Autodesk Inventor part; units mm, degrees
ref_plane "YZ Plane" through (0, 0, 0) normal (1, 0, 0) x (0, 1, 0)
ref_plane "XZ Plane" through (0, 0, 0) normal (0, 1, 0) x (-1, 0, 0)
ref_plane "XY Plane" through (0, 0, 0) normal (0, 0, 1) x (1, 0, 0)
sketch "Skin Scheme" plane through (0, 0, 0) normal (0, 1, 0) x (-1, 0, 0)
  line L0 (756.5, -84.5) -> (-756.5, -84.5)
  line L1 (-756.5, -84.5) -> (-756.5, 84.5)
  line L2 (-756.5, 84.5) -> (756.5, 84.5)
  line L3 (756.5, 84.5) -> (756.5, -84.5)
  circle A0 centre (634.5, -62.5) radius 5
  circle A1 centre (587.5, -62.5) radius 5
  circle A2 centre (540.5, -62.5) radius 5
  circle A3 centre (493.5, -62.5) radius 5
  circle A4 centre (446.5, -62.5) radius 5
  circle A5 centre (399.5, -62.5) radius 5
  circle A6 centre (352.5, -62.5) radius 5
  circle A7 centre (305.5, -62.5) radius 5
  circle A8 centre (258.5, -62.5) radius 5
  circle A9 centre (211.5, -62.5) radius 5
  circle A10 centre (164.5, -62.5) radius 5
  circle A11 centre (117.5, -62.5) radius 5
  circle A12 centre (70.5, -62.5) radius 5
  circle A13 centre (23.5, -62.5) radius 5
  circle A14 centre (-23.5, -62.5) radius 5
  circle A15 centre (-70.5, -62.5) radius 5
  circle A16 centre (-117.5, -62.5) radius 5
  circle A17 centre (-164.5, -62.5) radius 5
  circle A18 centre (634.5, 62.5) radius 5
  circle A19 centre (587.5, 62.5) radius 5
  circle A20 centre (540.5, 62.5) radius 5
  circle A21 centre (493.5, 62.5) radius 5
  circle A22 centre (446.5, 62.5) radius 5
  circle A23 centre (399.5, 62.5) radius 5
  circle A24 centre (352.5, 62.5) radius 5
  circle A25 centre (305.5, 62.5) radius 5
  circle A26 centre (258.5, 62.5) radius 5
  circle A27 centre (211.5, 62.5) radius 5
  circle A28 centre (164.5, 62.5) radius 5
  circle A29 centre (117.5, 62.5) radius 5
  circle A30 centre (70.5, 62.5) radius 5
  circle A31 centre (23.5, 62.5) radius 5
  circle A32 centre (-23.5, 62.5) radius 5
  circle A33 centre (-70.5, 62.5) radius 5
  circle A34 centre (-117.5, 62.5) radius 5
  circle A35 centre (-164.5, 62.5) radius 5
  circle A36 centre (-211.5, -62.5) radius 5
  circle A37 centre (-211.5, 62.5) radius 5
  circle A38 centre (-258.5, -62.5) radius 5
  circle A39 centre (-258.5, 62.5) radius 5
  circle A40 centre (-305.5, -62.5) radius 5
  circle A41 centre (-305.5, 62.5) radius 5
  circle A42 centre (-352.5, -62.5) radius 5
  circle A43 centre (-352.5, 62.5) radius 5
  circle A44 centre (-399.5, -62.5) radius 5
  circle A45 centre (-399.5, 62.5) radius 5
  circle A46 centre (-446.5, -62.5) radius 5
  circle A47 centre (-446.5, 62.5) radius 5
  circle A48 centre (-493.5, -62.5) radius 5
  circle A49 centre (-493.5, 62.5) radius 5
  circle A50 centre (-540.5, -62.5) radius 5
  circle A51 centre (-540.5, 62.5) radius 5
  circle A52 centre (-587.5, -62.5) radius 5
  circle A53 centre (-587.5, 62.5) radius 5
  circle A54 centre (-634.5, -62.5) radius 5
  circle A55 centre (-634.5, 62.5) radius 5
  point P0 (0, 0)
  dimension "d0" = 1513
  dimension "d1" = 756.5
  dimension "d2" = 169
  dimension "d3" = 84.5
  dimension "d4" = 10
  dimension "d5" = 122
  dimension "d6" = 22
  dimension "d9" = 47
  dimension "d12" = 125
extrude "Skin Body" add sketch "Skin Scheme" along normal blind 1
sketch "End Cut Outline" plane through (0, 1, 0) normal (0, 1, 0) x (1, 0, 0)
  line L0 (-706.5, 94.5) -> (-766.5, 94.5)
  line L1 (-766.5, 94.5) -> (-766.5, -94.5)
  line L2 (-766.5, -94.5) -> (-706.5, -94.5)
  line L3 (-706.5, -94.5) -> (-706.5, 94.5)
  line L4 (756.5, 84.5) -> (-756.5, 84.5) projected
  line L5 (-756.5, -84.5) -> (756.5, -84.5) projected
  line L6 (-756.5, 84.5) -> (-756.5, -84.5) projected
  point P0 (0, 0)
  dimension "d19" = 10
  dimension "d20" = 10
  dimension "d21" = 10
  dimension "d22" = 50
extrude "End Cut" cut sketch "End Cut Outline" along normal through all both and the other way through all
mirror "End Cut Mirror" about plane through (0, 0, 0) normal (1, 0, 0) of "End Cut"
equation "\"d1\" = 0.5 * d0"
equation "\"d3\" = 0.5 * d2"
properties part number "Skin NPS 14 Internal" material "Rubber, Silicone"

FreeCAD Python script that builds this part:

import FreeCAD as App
import Part
import Sketcher
from FreeCAD import Vector
Q = App.Units.Quantity

doc = App.newDocument("Part")
body = doc.addObject("PartDesign::Body", "Body")

sketch1 = doc.addObject("Sketcher::SketchObject", "Sketch")
body.addObject(sketch1)
sketch1.AttachmentSupport = (doc.XZ_Plane, [""])
sketch1.MapMode = "FlatFace"
sketch1.addGeometry(Part.LineSegment(Vector(756, -84, 0), Vector(-756, -84, 0)), False)
sketch1.addGeometry(Part.LineSegment(Vector(-756, -84, 0), Vector(-756, 84, 0)), False)
sketch1.addGeometry(Part.LineSegment(Vector(-756, 84, 0), Vector(756, 84, 0)), False)
sketch1.addGeometry(Part.LineSegment(Vector(756, 84, 0), Vector(756, -84, 0)), False)
sketch1.addGeometry(Part.Circle(Vector(634, -62, 0), Vector(0, 0, 1), 5), False)
sketch1.addGeometry(Part.Circle(Vector(588, -62, 0), Vector(0, 0, 1), 5), False)
sketch1.addGeometry(Part.Circle(Vector(540, -62, 0), Vector(0, 0, 1), 5), False)
sketch1.addGeometry(Part.Circle(Vector(494, -62, 0), Vector(0, 0, 1), 5), False)
sketch1.addGeometry(Part.Circle(Vector(446, -62, 0), Vector(0, 0, 1), 5), False)
sketch1.addGeometry(Part.Circle(Vector(400, -62, 0), Vector(0, 0, 1), 5), False)
sketch1.addGeometry(Part.Circle(Vector(352, -62, 0), Vector(0, 0, 1), 5), False)
sketch1.addGeometry(Part.Circle(Vector(306, -62, 0), Vector(0, 0, 1), 5), False)
sketch1.addGeometry(Part.Circle(Vector(258, -62, 0), Vector(0, 0, 1), 5), False)
sketch1.addGeometry(Part.Circle(Vector(212, -62, 0), Vector(0, 0, 1), 5), False)
sketch1.addGeometry(Part.Circle(Vector(164, -62, 0), Vector(0, 0, 1), 5), False)
sketch1.addGeometry(Part.Circle(Vector(118, -62, 0), Vector(0, 0, 1), 5), False)
sketch1.addGeometry(Part.Circle(Vector(70, -62, 0), Vector(0, 0, 1), 5), False)
sketch1.addGeometry(Part.Circle(Vector(24, -62, 0), Vector(0, 0, 1), 5), False)
sketch1.addGeometry(Part.Circle(Vector(-24, -62, 0), Vector(0, 0, 1), 5), False)
sketch1.addGeometry(Part.Circle(Vector(-70, -62, 0), Vector(0, 0, 1), 5), False)
sketch1.addGeometry(Part.Circle(Vector(-118, -62, 0), Vector(0, 0, 1), 5), False)
sketch1.addGeometry(Part.Circle(Vector(-164, -62, 0), Vector(0, 0, 1), 5), False)
sketch1.addGeometry(Part.Circle(Vector(-212, -62, 0), Vector(0, 0, 1), 5), False)
sketch1.addGeometry(Part.Circle(Vector(-258, -62, 0), Vector(0, 0, 1), 5), False)
sketch1.addGeometry(Part.Circle(Vector(-306, -62, 0), Vector(0, 0, 1), 5), False)
sketch1.addGeometry(Part.Circle(Vector(-352, -62, 0), Vector(0, 0, 1), 5), False)
sketch1.addGeometry(Part.Circle(Vector(-400, -62, 0), Vector(0, 0, 1), 5), False)
sketch1.addGeometry(Part.Circle(Vector(-446, -62, 0), Vector(0, 0, 1), 5), False)
sketch1.addGeometry(Part.Circle(Vector(-494, -62, 0), Vector(0, 0, 1), 5), False)
sketch1.addGeometry(Part.Circle(Vector(-540, -62, 0), Vector(0, 0, 1), 5), False)
sketch1.addGeometry(Part.Circle(Vector(-588, -62, 0), Vector(0, 0, 1), 5), False)
sketch1.addGeometry(Part.Circle(Vector(-634, -62, 0), Vector(0, 0, 1), 5), False)
sketch1.addGeometry(Part.Circle(Vector(634, 62, 0), Vector(0, 0, 1), 5), False)
sketch1.addGeometry(Part.Circle(Vector(588, 62, 0), Vector(0, 0, 1), 5), False)
sketch1.addGeometry(Part.Circle(Vector(540, 62, 0), Vector(0, 0, 1), 5), False)
sketch1.addGeometry(Part.Circle(Vector(494, 62, 0), Vector(0, 0, 1), 5), False)
sketch1.addGeometry(Part.Circle(Vector(446, 62, 0), Vector(0, 0, 1), 5), False)
sketch1.addGeometry(Part.Circle(Vector(400, 62, 0), Vector(0, 0, 1), 5), False)
sketch1.addGeometry(Part.Circle(Vector(352, 62, 0), Vector(0, 0, 1), 5), False)
sketch1.addGeometry(Part.Circle(Vector(306, 62, 0), Vector(0, 0, 1), 5), False)
sketch1.addGeometry(Part.Circle(Vector(258, 62, 0), Vector(0, 0, 1), 5), False)
sketch1.addGeometry(Part.Circle(Vector(212, 62, 0), Vector(0, 0, 1), 5), False)
sketch1.addGeometry(Part.Circle(Vector(164, 62, 0), Vector(0, 0, 1), 5), False)
sketch1.addGeometry(Part.Circle(Vector(118, 62, 0), Vector(0, 0, 1), 5), False)
sketch1.addGeometry(Part.Circle(Vector(70, 62, 0), Vector(0, 0, 1), 5), False)
sketch1.addGeometry(Part.Circle(Vector(24, 62, 0), Vector(0, 0, 1), 5), False)
sketch1.addGeometry(Part.Circle(Vector(-24, 62, 0), Vector(0, 0, 1), 5), False)
sketch1.addGeometry(Part.Circle(Vector(-70, 62, 0), Vector(0, 0, 1), 5), False)
sketch1.addGeometry(Part.Circle(Vector(-118, 62, 0), Vector(0, 0, 1), 5), False)
sketch1.addGeometry(Part.Circle(Vector(-164, 62, 0), Vector(0, 0, 1), 5), False)
sketch1.addGeometry(Part.Circle(Vector(-212, 62, 0), Vector(0, 0, 1), 5), False)
sketch1.addGeometry(Part.Circle(Vector(-258, 62, 0), Vector(0, 0, 1), 5), False)
sketch1.addGeometry(Part.Circle(Vector(-306, 62, 0), Vector(0, 0, 1), 5), False)
sketch1.addGeometry(Part.Circle(Vector(-352, 62, 0), Vector(0, 0, 1), 5), False)
sketch1.addGeometry(Part.Circle(Vector(-400, 62, 0), Vector(0, 0, 1), 5), False)
sketch1.addGeometry(Part.Circle(Vector(-446, 62, 0), Vector(0, 0, 1), 5), False)
sketch1.addGeometry(Part.Circle(Vector(-494, 62, 0), Vector(0, 0, 1), 5), False)
sketch1.addGeometry(Part.Circle(Vector(-540, 62, 0), Vector(0, 0, 1), 5), False)
sketch1.addGeometry(Part.Circle(Vector(-588, 62, 0), Vector(0, 0, 1), 5), False)
sketch1.addGeometry(Part.Circle(Vector(-634, 62, 0), Vector(0, 0, 1), 5), False)
sketch1.addConstraint(Sketcher.Constraint("Coincident", 0, 2, 1, 1))
sketch1.addConstraint(Sketcher.Constraint("Coincident", 1, 2, 2, 1))
sketch1.addConstraint(Sketcher.Constraint("Coincident", 2, 2, 3, 1))
sketch1.addConstraint(Sketcher.Constraint("Coincident", 3, 2, 0, 1))
sketch1.addConstraint(Sketcher.Constraint("Horizontal", 0))
sketch1.addConstraint(Sketcher.Constraint("Vertical", 1))
sketch1.addConstraint(Sketcher.Constraint("Horizontal", 2))
sketch1.addConstraint(Sketcher.Constraint("Vertical", 3))
sketch1.addConstraint(Sketcher.Constraint("Equal", 4, 5))
sketch1.addConstraint(Sketcher.Constraint("Equal", 5, 6))
sketch1.addConstraint(Sketcher.Constraint("Equal", 6, 7))
sketch1.addConstraint(Sketcher.Constraint("Equal", 7, 8))
sketch1.addConstraint(Sketcher.Constraint("Equal", 8, 9))
sketch1.addConstraint(Sketcher.Constraint("Equal", 9, 10))
sketch1.addConstraint(Sketcher.Constraint("Equal", 10, 11))
sketch1.addConstraint(Sketcher.Constraint("Equal", 11, 12))
sketch1.addConstraint(Sketcher.Constraint("Equal", 12, 13))
sketch1.addConstraint(Sketcher.Constraint("Equal", 13, 14))
sketch1.addConstraint(Sketcher.Constraint("Equal", 14, 15))
sketch1.addConstraint(Sketcher.Constraint("Equal", 15, 16))
sketch1.addConstraint(Sketcher.Constraint("Equal", 16, 17))
sketch1.addConstraint(Sketcher.Constraint("Equal", 17, 18))
sketch1.addConstraint(Sketcher.Constraint("Equal", 18, 19))
sketch1.addConstraint(Sketcher.Constraint("Equal", 19, 20))
sketch1.addConstraint(Sketcher.Constraint("Equal", 20, 21))
sketch1.addConstraint(Sketcher.Constraint("Equal", 21, 22))
sketch1.addConstraint(Sketcher.Constraint("Equal", 22, 23))
sketch1.addConstraint(Sketcher.Constraint("Equal", 23, 24))
sketch1.addConstraint(Sketcher.Constraint("Equal", 24, 25))
sketch1.addConstraint(Sketcher.Constraint("Equal", 25, 26))
sketch1.addConstraint(Sketcher.Constraint("Equal", 26, 27))
sketch1.addConstraint(Sketcher.Constraint("Equal", 27, 28))
sketch1.addConstraint(Sketcher.Constraint("Equal", 28, 29))
sketch1.addConstraint(Sketcher.Constraint("Equal", 29, 30))
sketch1.addConstraint(Sketcher.Constraint("Equal", 30, 31))
sketch1.addConstraint(Sketcher.Constraint("Equal", 31, 32))
sketch1.addConstraint(Sketcher.Constraint("Equal", 32, 33))
sketch1.addConstraint(Sketcher.Constraint("Equal", 33, 34))
sketch1.addConstraint(Sketcher.Constraint("Equal", 34, 35))
sketch1.addConstraint(Sketcher.Constraint("Equal", 35, 36))
sketch1.addConstraint(Sketcher.Constraint("Equal", 36, 37))
sketch1.addConstraint(Sketcher.Constraint("Equal", 37, 38))
sketch1.addConstraint(Sketcher.Constraint("Equal", 38, 39))
sketch1.addConstraint(Sketcher.Constraint("Equal", 39, 40))
sketch1.addConstraint(Sketcher.Constraint("Equal", 40, 41))
sketch1.addConstraint(Sketcher.Constraint("Equal", 41, 42))
sketch1.addConstraint(Sketcher.Constraint("Equal", 42, 43))
sketch1.addConstraint(Sketcher.Constraint("Equal", 43, 44))
sketch1.addConstraint(Sketcher.Constraint("Equal", 44, 45))
sketch1.addConstraint(Sketcher.Constraint("Equal", 45, 46))
sketch1.addConstraint(Sketcher.Constraint("Equal", 46, 47))
sketch1.addConstraint(Sketcher.Constraint("Equal", 47, 48))
sketch1.addConstraint(Sketcher.Constraint("Equal", 48, 49))
sketch1.addConstraint(Sketcher.Constraint("Equal", 49, 50))
sketch1.addConstraint(Sketcher.Constraint("Equal", 50, 51))
sketch1.addConstraint(Sketcher.Constraint("Equal", 51, 52))
sketch1.addConstraint(Sketcher.Constraint("Equal", 52, 53))
sketch1.addConstraint(Sketcher.Constraint("Equal", 53, 54))
sketch1.addConstraint(Sketcher.Constraint("Equal", 54, 55))
sketch1.addConstraint(Sketcher.Constraint("Equal", 55, 56))
sketch1.addConstraint(Sketcher.Constraint("Equal", 56, 57))
sketch1.addConstraint(Sketcher.Constraint("Equal", 57, 58))
sketch1.addConstraint(Sketcher.Constraint("Equal", 58, 59))
sketch1.addConstraint(Sketcher.Constraint("Symmetric", 31, 3, 32, 3, -1, 1))
sketch1.addConstraint(Sketcher.Constraint("Symmetric", 30, 3, 33, 3, -1, 1))
sketch1.addConstraint(Sketcher.Constraint("Symmetric", 29, 3, 34, 3, -1, 1))
sketch1.addConstraint(Sketcher.Constraint("Symmetric", 28, 3, 35, 3, -1, 1))
sketch1.addConstraint(Sketcher.Constraint("Symmetric", 27, 3, 36, 3, -1, 1))
sketch1.addConstraint(Sketcher.Constraint("Symmetric", 26, 3, 37, 3, -1, 1))
sketch1.addConstraint(Sketcher.Constraint("Symmetric", 25, 3, 38, 3, -1, 1))
sketch1.addConstraint(Sketcher.Constraint("Symmetric", 24, 3, 39, 3, -1, 1))
sketch1.addConstraint(Sketcher.Constraint("Symmetric", 23, 3, 40, 3, -1, 1))
sketch1.addConstraint(Sketcher.Constraint("Symmetric", 22, 3, 41, 3, -1, 1))
sketch1.addConstraint(Sketcher.Constraint("Symmetric", 21, 3, 42, 3, -1, 1))
sketch1.addConstraint(Sketcher.Constraint("Symmetric", 20, 3, 43, 3, -1, 1))
sketch1.addConstraint(Sketcher.Constraint("Symmetric", 19, 3, 44, 3, -1, 1))
sketch1.addConstraint(Sketcher.Constraint("Symmetric", 18, 3, 45, 3, -1, 1))
sketch1.addConstraint(Sketcher.Constraint("Symmetric", 17, 3, 46, 3, -1, 1))
sketch1.addConstraint(Sketcher.Constraint("Symmetric", 16, 3, 47, 3, -1, 1))
sketch1.addConstraint(Sketcher.Constraint("Symmetric", 15, 3, 48, 3, -1, 1))
sketch1.addConstraint(Sketcher.Constraint("Symmetric", 14, 3, 49, 3, -1, 1))
sketch1.addConstraint(Sketcher.Constraint("Symmetric", 13, 3, 50, 3, -1, 1))
sketch1.addConstraint(Sketcher.Constraint("Symmetric", 12, 3, 51, 3, -1, 1))
sketch1.addConstraint(Sketcher.Constraint("Symmetric", 11, 3, 52, 3, -1, 1))
sketch1.addConstraint(Sketcher.Constraint("Symmetric", 10, 3, 53, 3, -1, 1))
sketch1.addConstraint(Sketcher.Constraint("Symmetric", 9, 3, 54, 3, -1, 1))
sketch1.addConstraint(Sketcher.Constraint("Symmetric", 8, 3, 55, 3, -1, 1))
sketch1.addConstraint(Sketcher.Constraint("Symmetric", 7, 3, 56, 3, -1, 1))
sketch1.addConstraint(Sketcher.Constraint("Symmetric", 6, 3, 57, 3, -1, 1))
sketch1.addConstraint(Sketcher.Constraint("Symmetric", 5, 3, 58, 3, -1, 1))
sketch1.addConstraint(Sketcher.Constraint("Symmetric", 4, 3, 59, 3, -1, 1))
sketch1.addConstraint(Sketcher.Constraint("Symmetric", 0, 2, 2, 2, -1, 1))
sketch1.addConstraint(Sketcher.Constraint("Symmetric", 17, 3, 18, 3, -2))
sketch1.addConstraint(Sketcher.Constraint("Symmetric", 16, 3, 19, 3, -2))
sketch1.addConstraint(Sketcher.Constraint("Symmetric", 15, 3, 20, 3, -2))
sketch1.addConstraint(Sketcher.Constraint("Symmetric", 14, 3, 21, 3, -2))
sketch1.addConstraint(Sketcher.Constraint("Symmetric", 13, 3, 22, 3, -2))
sketch1.addConstraint(Sketcher.Constraint("Symmetric", 12, 3, 23, 3, -2))
sketch1.addConstraint(Sketcher.Constraint("Symmetric", 11, 3, 24, 3, -2))
sketch1.addConstraint(Sketcher.Constraint("Symmetric", 10, 3, 25, 3, -2))
sketch1.addConstraint(Sketcher.Constraint("Symmetric", 9, 3, 26, 3, -2))
sketch1.addConstraint(Sketcher.Constraint("Symmetric", 8, 3, 27, 3, -2))
sketch1.addConstraint(Sketcher.Constraint("Symmetric", 7, 3, 28, 3, -2))
sketch1.addConstraint(Sketcher.Constraint("Symmetric", 6, 3, 29, 3, -2))
sketch1.addConstraint(Sketcher.Constraint("Symmetric", 5, 3, 30, 3, -2))
sketch1.addConstraint(Sketcher.Constraint("Symmetric", 4, 3, 31, 3, -2))
sketch1.addConstraint(Sketcher.Constraint("Horizontal", 4, 3, 5, 3))
sketch1.addConstraint(Sketcher.Constraint("Horizontal", 5, 3, 6, 3))
sketch1.addConstraint(Sketcher.Constraint("Horizontal", 6, 3, 7, 3))
sketch1.addConstraint(Sketcher.Constraint("Horizontal", 7, 3, 8, 3))
sketch1.addConstraint(Sketcher.Constraint("Horizontal", 8, 3, 9, 3))
sketch1.addConstraint(Sketcher.Constraint("Horizontal", 9, 3, 10, 3))
sketch1.addConstraint(Sketcher.Constraint("Horizontal", 10, 3, 11, 3))
sketch1.addConstraint(Sketcher.Constraint("Horizontal", 11, 3, 12, 3))
sketch1.addConstraint(Sketcher.Constraint("Horizontal", 12, 3, 13, 3))
sketch1.addConstraint(Sketcher.Constraint("Horizontal", 13, 3, 14, 3))
sketch1.addConstraint(Sketcher.Constraint("Horizontal", 14, 3, 15, 3))
sketch1.addConstraint(Sketcher.Constraint("Horizontal", 15, 3, 16, 3))
sketch1.addConstraint(Sketcher.Constraint("Horizontal", 16, 3, 17, 3))
sketch1.addConstraint(Sketcher.Constraint("Diameter", 4, Q("10 mm")))
sketch1.addConstraint(Sketcher.Constraint("DistanceX", 0, 2, 0, 1, Q("1513 mm")))
sketch1.addConstraint(Sketcher.Constraint("DistanceY", 1, 1, 1, 2, Q("169 mm")))
sketch1.addConstraint(Sketcher.Constraint("DistanceX", 5, 3, 4, 3, Q("47 mm")))
sketch1.addConstraint(Sketcher.Constraint("DistanceX", 6, 3, 5, 3, Q("47 mm")))
sketch1.addConstraint(Sketcher.Constraint("DistanceX", 7, 3, 6, 3, Q("47 mm")))
sketch1.addConstraint(Sketcher.Constraint("DistanceX", 8, 3, 7, 3, Q("47 mm")))
sketch1.addConstraint(Sketcher.Constraint("DistanceX", 9, 3, 8, 3, Q("47 mm")))
sketch1.addConstraint(Sketcher.Constraint("DistanceX", 10, 3, 9, 3, Q("47 mm")))
sketch1.addConstraint(Sketcher.Constraint("DistanceX", 11, 3, 10, 3, Q("47 mm")))
sketch1.addConstraint(Sketcher.Constraint("DistanceX", 12, 3, 11, 3, Q("47 mm")))
sketch1.addConstraint(Sketcher.Constraint("DistanceX", 13, 3, 12, 3, Q("47 mm")))
sketch1.addConstraint(Sketcher.Constraint("DistanceX", 14, 3, 13, 3, Q("47 mm")))
sketch1.addConstraint(Sketcher.Constraint("DistanceX", 15, 3, 14, 3, Q("47 mm")))
sketch1.addConstraint(Sketcher.Constraint("DistanceX", 16, 3, 15, 3, Q("47 mm")))
sketch1.addConstraint(Sketcher.Constraint("DistanceX", 17, 3, 16, 3, Q("47 mm")))
sketch1.addConstraint(Sketcher.Constraint("DistanceX", 18, 3, 17, 3, Q("47 mm")))
sketch1.addConstraint(Sketcher.Constraint("DistanceY", 4, 3, 32, 3, Q("125 mm")))
pad1 = doc.addObject("PartDesign::Pad", "Pad")
body.addObject(pad1)
pad1.Profile = sketch1
pad1.Length = 1
pad1.Reversed = True

sketch2 = doc.addObject("Sketcher::SketchObject", "Sketch001")
body.addObject(sketch2)
sketch2.AttachmentSupport = (doc.XZ_Plane, [""])
sketch2.MapMode = "FlatFace"
sketch2.AttachmentOffset = App.Placement(Vector(0, 0, -1), App.Rotation())
sketch2.addGeometry(Part.LineSegment(Vector(-706, -94, 0), Vector(-766, -94, 0)), False)
sketch2.addGeometry(Part.LineSegment(Vector(-766, -94, 0), Vector(-766, 94, 0)), False)
sketch2.addGeometry(Part.LineSegment(Vector(-766, 94, 0), Vector(-706, 94, 0)), False)
sketch2.addGeometry(Part.LineSegment(Vector(-706, 94, 0), Vector(-706, -94, 0)), False)
sketch2.addConstraint(Sketcher.Constraint("Coincident", 0, 2, 1, 1))
sketch2.addConstraint(Sketcher.Constraint("Coincident", 1, 2, 2, 1))
sketch2.addConstraint(Sketcher.Constraint("Coincident", 2, 2, 3, 1))
sketch2.addConstraint(Sketcher.Constraint("Coincident", 3, 2, 0, 1))
sketch2.addConstraint(Sketcher.Constraint("Horizontal", 0))
sketch2.addConstraint(Sketcher.Constraint("Vertical", 1))
sketch2.addConstraint(Sketcher.Constraint("Horizontal", 2))
sketch2.addConstraint(Sketcher.Constraint("Vertical", 3))
sketch2.addConstraint(Sketcher.Constraint("DistanceX", 0, 2, 0, 1, Q("60 mm")))
sketch2.addConstraint(Sketcher.Constraint("DistanceY", 1, 1, 1, 2, Q("189 mm")))
sketch2.addConstraint(Sketcher.Constraint("DistanceX", 0, 2, -1, 1, Q("766.5 mm")))
sketch2.addConstraint(Sketcher.Constraint("DistanceY", 0, 2, -1, 1, Q("94.5 mm")))
pocket1 = doc.addObject("PartDesign::Pocket", "Pocket")
body.addObject(pocket1)
pocket1.Profile = sketch2
pocket1.Type = "ThroughAll"
pocket1.Midplane = True
doc.recompute()

mirrored = doc.addObject("PartDesign::Mirrored", "Mirrored")
body.addObject(mirrored)
mirrored.Originals = [pocket1]
mirrored.MirrorPlane = (doc.YZ_Plane, [""])
body.Tip = mirrored

doc.recompute()
